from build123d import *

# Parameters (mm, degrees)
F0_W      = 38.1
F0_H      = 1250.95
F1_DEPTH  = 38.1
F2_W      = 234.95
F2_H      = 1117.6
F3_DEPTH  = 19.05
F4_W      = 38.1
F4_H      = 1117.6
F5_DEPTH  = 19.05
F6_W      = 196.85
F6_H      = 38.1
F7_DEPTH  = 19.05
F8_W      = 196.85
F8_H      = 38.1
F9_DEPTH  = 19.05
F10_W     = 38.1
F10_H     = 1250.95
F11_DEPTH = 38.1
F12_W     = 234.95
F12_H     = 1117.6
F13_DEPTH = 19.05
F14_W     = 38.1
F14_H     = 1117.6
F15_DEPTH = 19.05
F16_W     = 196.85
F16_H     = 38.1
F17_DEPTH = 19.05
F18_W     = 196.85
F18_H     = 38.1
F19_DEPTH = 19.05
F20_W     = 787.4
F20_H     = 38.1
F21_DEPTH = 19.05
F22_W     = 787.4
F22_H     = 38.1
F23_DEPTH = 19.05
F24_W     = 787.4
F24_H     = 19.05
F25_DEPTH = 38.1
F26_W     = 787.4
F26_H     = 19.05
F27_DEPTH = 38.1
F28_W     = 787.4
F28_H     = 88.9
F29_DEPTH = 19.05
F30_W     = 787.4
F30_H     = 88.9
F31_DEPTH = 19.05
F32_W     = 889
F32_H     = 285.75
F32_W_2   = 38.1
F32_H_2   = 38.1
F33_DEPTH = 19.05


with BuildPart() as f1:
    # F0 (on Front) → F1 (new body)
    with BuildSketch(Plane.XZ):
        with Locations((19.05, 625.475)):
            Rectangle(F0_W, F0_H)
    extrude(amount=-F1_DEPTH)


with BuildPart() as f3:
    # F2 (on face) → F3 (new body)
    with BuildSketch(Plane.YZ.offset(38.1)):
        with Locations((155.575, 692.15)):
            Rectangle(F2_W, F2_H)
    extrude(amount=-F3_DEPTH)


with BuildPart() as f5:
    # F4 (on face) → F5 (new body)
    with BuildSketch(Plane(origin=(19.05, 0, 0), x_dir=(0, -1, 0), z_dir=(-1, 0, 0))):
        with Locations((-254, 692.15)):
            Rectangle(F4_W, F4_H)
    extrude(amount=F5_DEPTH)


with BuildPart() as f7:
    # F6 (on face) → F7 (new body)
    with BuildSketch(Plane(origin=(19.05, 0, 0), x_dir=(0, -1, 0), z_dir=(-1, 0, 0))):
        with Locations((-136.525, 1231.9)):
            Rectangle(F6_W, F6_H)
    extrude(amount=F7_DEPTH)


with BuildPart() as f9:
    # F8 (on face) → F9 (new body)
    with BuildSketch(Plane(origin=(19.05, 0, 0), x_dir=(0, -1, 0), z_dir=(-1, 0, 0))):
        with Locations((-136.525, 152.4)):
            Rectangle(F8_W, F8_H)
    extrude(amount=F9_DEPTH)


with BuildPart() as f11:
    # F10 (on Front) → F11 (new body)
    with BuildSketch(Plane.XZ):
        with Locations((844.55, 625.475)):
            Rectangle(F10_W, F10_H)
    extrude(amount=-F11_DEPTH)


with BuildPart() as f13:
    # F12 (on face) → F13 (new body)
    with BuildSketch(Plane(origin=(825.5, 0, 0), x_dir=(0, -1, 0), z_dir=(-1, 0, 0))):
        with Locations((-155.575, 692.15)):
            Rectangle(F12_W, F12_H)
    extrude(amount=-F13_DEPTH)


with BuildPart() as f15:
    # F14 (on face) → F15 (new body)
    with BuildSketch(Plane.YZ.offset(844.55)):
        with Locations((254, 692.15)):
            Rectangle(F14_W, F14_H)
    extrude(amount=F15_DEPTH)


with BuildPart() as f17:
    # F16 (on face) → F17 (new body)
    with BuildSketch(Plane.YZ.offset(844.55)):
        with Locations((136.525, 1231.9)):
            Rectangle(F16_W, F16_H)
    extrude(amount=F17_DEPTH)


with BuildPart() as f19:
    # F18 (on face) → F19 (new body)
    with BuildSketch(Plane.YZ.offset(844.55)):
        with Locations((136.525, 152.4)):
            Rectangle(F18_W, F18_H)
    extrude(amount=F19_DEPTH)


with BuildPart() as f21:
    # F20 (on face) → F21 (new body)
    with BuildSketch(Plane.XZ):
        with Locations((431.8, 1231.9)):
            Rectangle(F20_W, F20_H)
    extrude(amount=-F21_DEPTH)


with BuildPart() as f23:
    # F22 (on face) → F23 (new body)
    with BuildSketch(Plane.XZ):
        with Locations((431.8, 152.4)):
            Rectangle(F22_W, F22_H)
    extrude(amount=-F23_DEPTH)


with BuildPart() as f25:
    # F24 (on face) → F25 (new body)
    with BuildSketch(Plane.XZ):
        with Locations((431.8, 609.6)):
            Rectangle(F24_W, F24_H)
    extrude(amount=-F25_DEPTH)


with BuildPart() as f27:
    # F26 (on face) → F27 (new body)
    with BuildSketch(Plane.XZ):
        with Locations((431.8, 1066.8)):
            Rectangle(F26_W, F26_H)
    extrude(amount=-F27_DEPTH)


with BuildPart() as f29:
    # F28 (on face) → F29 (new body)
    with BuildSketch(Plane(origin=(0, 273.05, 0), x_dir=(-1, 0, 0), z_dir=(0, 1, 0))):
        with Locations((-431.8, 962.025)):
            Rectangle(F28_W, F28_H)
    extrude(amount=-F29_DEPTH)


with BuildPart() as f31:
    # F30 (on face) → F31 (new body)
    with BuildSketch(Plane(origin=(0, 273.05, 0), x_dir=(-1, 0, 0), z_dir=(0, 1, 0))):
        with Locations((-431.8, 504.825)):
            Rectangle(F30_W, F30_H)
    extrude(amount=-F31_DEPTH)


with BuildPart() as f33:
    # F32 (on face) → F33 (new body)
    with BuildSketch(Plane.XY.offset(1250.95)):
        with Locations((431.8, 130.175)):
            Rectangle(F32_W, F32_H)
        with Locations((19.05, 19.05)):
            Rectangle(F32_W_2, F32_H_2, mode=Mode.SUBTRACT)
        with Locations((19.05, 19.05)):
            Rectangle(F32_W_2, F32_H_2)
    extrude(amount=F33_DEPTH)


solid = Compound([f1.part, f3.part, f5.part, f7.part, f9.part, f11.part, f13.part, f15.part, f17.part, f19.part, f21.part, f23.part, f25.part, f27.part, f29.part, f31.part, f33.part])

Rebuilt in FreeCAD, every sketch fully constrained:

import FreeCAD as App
import Part
import Sketcher
Q = App.Units.Quantity


def add_polygon(sketch, points):
    """Adds a closed chain of lines whose ends are joined by coincident constraints."""
    first, n = sketch.GeometryCount, len(points)
    for a, b in zip(points, points[1:] + points[:1]):
        sketch.addGeometry(Part.LineSegment(App.Vector(*a, 0), App.Vector(*b, 0)), False)
    for i in range(n):
        sketch.addConstraint(Sketcher.Constraint("Coincident", first + i, 2, first + (i + 1) % n, 1))

doc = App.newDocument("Part")
params = doc.addObject("Spreadsheet::Sheet", "Params")
for row, (alias, value) in enumerate([
    ("sketch1_width", "1.5 in"),
    ("sketch1_height", "49.25 in"),
    ("pad1_length", "1.5 in"),
    ("sketch2_height", "44 in"),
    ("sketch2_width", "9.25 in"),
    ("pad2_length", "0.75 in"),
    ("sketch3_height", "44 in"),
    ("sketch3_width", "1.5 in"),
    ("pad3_length", "0.75 in"),
    ("sketch4_height", "1.5 in"),
    ("sketch4_width", "7.75 in"),
    ("pad4_length", "0.75 in"),
    ("sketch5_height", "1.5 in"),
    ("sketch5_width", "7.75 in"),
    ("pad5_length", "0.75 in"),
    ("sketch6_width", "1.5 in"),
    ("sketch6_height", "49.25 in"),
    ("pad6_length", "1.5 in"),
    ("sketch7_height", "44 in"),
    ("sketch7_width", "9.25 in"),
    ("pad7_length", "0.75 in"),
    ("sketch8_height", "44 in"),
    ("sketch8_width", "1.5 in"),
    ("pad8_length", "0.75 in"),
    ("sketch9_height", "1.5 in"),
    ("sketch9_width", "7.75 in"),
    ("pad9_length", "0.75 in"),
    ("sketch10_height", "1.5 in"),
    ("sketch10_width", "7.75 in"),
    ("pad10_length", "0.75 in"),
    ("sketch11_width", "31 in"),
    ("sketch11_height", "1.5 in"),
    ("pad11_length", "0.75 in"),
    ("sketch12_width", "31 in"),
    ("sketch12_height", "1.5 in"),
    ("pad12_length", "0.75 in"),
    ("sketch13_width", "31 in"),
    ("sketch13_height", "0.75 in"),
    ("pad13_length", "1.5 in"),
    ("sketch14_width", "31 in"),
    ("sketch14_height", "0.75 in"),
    ("pad14_length", "1.5 in"),
    ("sketch15_width", "31 in"),
    ("sketch15_height", "3.5 in"),
    ("pad15_length", "0.75 in"),
    ("sketch16_width", "31 in"),
    ("sketch16_height", "3.5 in"),
    ("pad16_length", "0.75 in"),
    ("sketch17_width", "35 in"),
    ("sketch17_height", "11.25 in"),
    ("pad17_length", "0.75 in"),
], start=1):
    params.set(f"A{row}", alias)
    params.set(f"B{row}", "=" + value)
    params.setAlias(f"B{row}", alias)

body = doc.addObject("PartDesign::Body", "Body")

# Sketch on XZ plane
sketch1 = body.newObject("Sketcher::SketchObject", "Sketch")
sketch1.AttachmentSupport = (doc.getObject("XZ_Plane"), [""])
sketch1.MapMode = "FlatFace"
add_polygon(sketch1, [(0, 1251), (0, 0), (38, 0), (38, 1251)])  # lines 0-3
sketch1.addConstraint([
    Sketcher.Constraint("Vertical", 0),
    Sketcher.Constraint("Horizontal", 1),
    Sketcher.Constraint("Vertical", 2),
    Sketcher.Constraint("Horizontal", 3),
    Sketcher.Constraint("Coincident", 0, 2, -1, 1),
    Sketcher.Constraint("DistanceX", 1, 1, 1, 2, Q("1.5 in")),
    Sketcher.Constraint("DistanceY", 0, 2, 0, 1, Q("49.25 in")),
])
sketch1.setExpression("Constraints[9]", "Params.sketch1_width")
sketch1.setExpression("Constraints[10]", "Params.sketch1_height")
pad1 = body.newObject("PartDesign::Pad", "Pad")
pad1.Profile = sketch1
pad1.setExpression("Length", "Params.pad1_length")
pad1.Reversed = True
body2 = doc.addObject("PartDesign::Body", "Body001")

# Sketch on YZ plane
sketch2 = body2.newObject("Sketcher::SketchObject", "Sketch001")
sketch2.AttachmentSupport = (doc.getObject("YZ_Plane001"), [""])
sketch2.MapMode = "FlatFace"
sketch2.AttachmentOffset = App.Placement(App.Vector(0, 0, 1.5 * 25.4), App.Rotation())
add_polygon(sketch2, [(38, 1251), (38, 133), (273, 133), (273, 1251)])  # lines 0-3
sketch2.addConstraint([
    Sketcher.Constraint("Vertical", 0),
    Sketcher.Constraint("Horizontal", 1),
    Sketcher.Constraint("Vertical", 2),
    Sketcher.Constraint("Horizontal", 3),
    Sketcher.Constraint("DistanceY", 0, 2, 0, 1, Q("44 in")),
    Sketcher.Constraint("DistanceX", 1, 1, 1, 2, Q("9.25 in")),
    Sketcher.Constraint("DistanceX", -1, 1, 0, 2, Q("1.5 in")),
    Sketcher.Constraint("DistanceY", -1, 1, 0, 2, Q("5.25 in")),
])
sketch2.setExpression("Constraints[8]", "Params.sketch2_height")
sketch2.setExpression("Constraints[9]", "Params.sketch2_width")
pad2 = body2.newObject("PartDesign::Pad", "Pad001")
pad2.Profile = sketch2
pad2.setExpression("Length", "Params.pad2_length")
pad2.Reversed = True
body3 = doc.addObject("PartDesign::Body", "Body002")

# Sketch on YZ plane
sketch3 = body3.newObject("Sketcher::SketchObject", "Sketch002")
sketch3.AttachmentSupport = (doc.getObject("YZ_Plane002"), [""])
sketch3.MapMode = "FlatFace"
sketch3.AttachmentOffset = App.Placement(App.Vector(0, 0, 0.75 * 25.4), App.Rotation())
add_polygon(sketch3, [(273, 1251), (273, 133), (235, 133), (235, 1251)])  # lines 0-3
sketch3.addConstraint([
    Sketcher.Constraint("Vertical", 0),
    Sketcher.Constraint("Horizontal", 1),
    Sketcher.Constraint("Vertical", 2),
    Sketcher.Constraint("Horizontal", 3),
    Sketcher.Constraint("DistanceY", 0, 2, 0, 1, Q("44 in")),
    Sketcher.Constraint("DistanceX", 1, 2, 1, 1, Q("1.5 in")),
    Sketcher.Constraint("DistanceX", -1, 1, 0, 2, Q("10.75 in")),
    Sketcher.Constraint("DistanceY", -1, 1, 0, 2, Q("5.25 in")),
])
sketch3.setExpression("Constraints[8]", "Params.sketch3_height")
sketch3.setExpression("Constraints[9]", "Params.sketch3_width")
pad3 = body3.newObject("PartDesign::Pad", "Pad002")
pad3.Profile = sketch3
pad3.setExpression("Length", "Params.pad3_length")
pad3.Reversed = True
body4 = doc.addObject("PartDesign::Body", "Body003")

# Sketch on YZ plane
sketch4 = body4.newObject("Sketcher::SketchObject", "Sketch003")
sketch4.AttachmentSupport = (doc.getObject("YZ_Plane003"), [""])
sketch4.MapMode = "FlatFace"
sketch4.AttachmentOffset = App.Placement(App.Vector(0, 0, 0.75 * 25.4), App.Rotation())
add_polygon(sketch4, [(235, 1251), (235, 1213), (38, 1213), (38, 1251)])  # lines 0-3
sketch4.addConstraint([
    Sketcher.Constraint("Vertical", 0),
    Sketcher.Constraint("Horizontal", 1),
    Sketcher.Constraint("Vertical", 2),
    Sketcher.Constraint("Horizontal", 3),
    Sketcher.Constraint("DistanceY", 0, 2, 0, 1, Q("1.5 in")),
    Sketcher.Constraint("DistanceX", 1, 2, 1, 1, Q("7.75 in")),
    Sketcher.Constraint("DistanceX", -1, 1, 1, 2, Q("1.5 in")),
    Sketcher.Constraint("DistanceY", -1, 1, 0, 2, Q("47.75 in")),
])
sketch4.setExpression("Constraints[8]", "Params.sketch4_height")
sketch4.setExpression("Constraints[9]", "Params.sketch4_width")
pad4 = body4.newObject("PartDesign::Pad", "Pad003")
pad4.Profile = sketch4
pad4.setExpression("Length", "Params.pad4_length")
pad4.Reversed = True
body5 = doc.addObject("PartDesign::Body", "Body004")

# Sketch on YZ plane
sketch5 = body5.newObject("Sketcher::SketchObject", "Sketch004")
sketch5.AttachmentSupport = (doc.getObject("YZ_Plane004"), [""])
sketch5.MapMode = "FlatFace"
sketch5.AttachmentOffset = App.Placement(App.Vector(0, 0, 0.75 * 25.4), App.Rotation())
add_polygon(sketch5, [(235, 171), (235, 133), (38, 133), (38, 171)])  # lines 0-3
sketch5.addConstraint([
    Sketcher.Constraint("Vertical", 0),
    Sketcher.Constraint("Horizontal", 1),
    Sketcher.Constraint("Vertical", 2),
    Sketcher.Constraint("Horizontal", 3),
    Sketcher.Constraint("DistanceY", 0, 2, 0, 1, Q("1.5 in")),
    Sketcher.Constraint("DistanceX", 1, 2, 1, 1, Q("7.75 in")),
    Sketcher.Constraint("DistanceX", -1, 1, 1, 2, Q("1.5 in")),
    Sketcher.Constraint("DistanceY", -1, 1, 0, 2, Q("5.25 in")),
])
sketch5.setExpression("Constraints[8]", "Params.sketch5_height")
sketch5.setExpression("Constraints[9]", "Params.sketch5_width")
pad5 = body5.newObject("PartDesign::Pad", "Pad004")
pad5.Profile = sketch5
pad5.setExpression("Length", "Params.pad5_length")
pad5.Reversed = True
body6 = doc.addObject("PartDesign::Body", "Body005")

# Sketch on XZ plane
sketch6 = body6.newObject("Sketcher::SketchObject", "Sketch005")
sketch6.AttachmentSupport = (doc.getObject("XZ_Plane005"), [""])
sketch6.MapMode = "FlatFace"
add_polygon(sketch6, [(826, 1251), (826, 0), (864, 0), (864, 1251)])  # lines 0-3
sketch6.addConstraint([
    Sketcher.Constraint("Vertical", 0),
    Sketcher.Constraint("Horizontal", 1),
    Sketcher.Constraint("Vertical", 2),
    Sketcher.Constraint("Horizontal", 3),
    Sketcher.Constraint("PointOnObject", 0, 2, -1),
    Sketcher.Constraint("DistanceX", 1, 1, 1, 2, Q("1.5 in")),
    Sketcher.Constraint("DistanceX", -1, 1, 1, 2, Q("34 in")),
    Sketcher.Constraint("DistanceY", 0, 2, 0, 1, Q("49.25 in")),
])
sketch6.setExpression("Constraints[9]", "Params.sketch6_width")
sketch6.setExpression("Constraints[11]", "Params.sketch6_height")
pad6 = body6.newObject("PartDesign::Pad", "Pad005")
pad6.Profile = sketch6
pad6.setExpression("Length", "Params.pad6_length")
pad6.Reversed = True
body7 = doc.addObject("PartDesign::Body", "Body006")

# Sketch on YZ plane
sketch7 = body7.newObject("Sketcher::SketchObject", "Sketch006")
sketch7.AttachmentSupport = (doc.getObject("YZ_Plane006"), [""])
sketch7.MapMode = "FlatFace"
sketch7.AttachmentOffset = App.Placement(App.Vector(0, 0, 32.5 * 25.4), App.Rotation())
add_polygon(sketch7, [(273, 1251), (273, 133), (38, 133), (38, 1251)])  # lines 0-3
sketch7.addConstraint([
    Sketcher.Constraint("Vertical", 0),
    Sketcher.Constraint("Horizontal", 1),
    Sketcher.Constraint("Vertical", 2),
    Sketcher.Constraint("Horizontal", 3),
    Sketcher.Constraint("DistanceY", 0, 2, 0, 1, Q("44 in")),
    Sketcher.Constraint("DistanceX", 1, 2, 1, 1, Q("9.25 in")),
    Sketcher.Constraint("DistanceX", -1, 1, 1, 2, Q("1.5 in")),
    Sketcher.Constraint("DistanceY", -1, 1, 0, 2, Q("5.25 in")),
])
sketch7.setExpression("Constraints[8]", "Params.sketch7_height")
sketch7.setExpression("Constraints[9]", "Params.sketch7_width")
pad7 = body7.newObject("PartDesign::Pad", "Pad006")
pad7.Profile = sketch7
pad7.setExpression("Length", "Params.pad7_length")
body8 = doc.addObject("PartDesign::Body", "Body007")

# Sketch on YZ plane
sketch8 = body8.newObject("Sketcher::SketchObject", "Sketch007")
sketch8.AttachmentSupport = (doc.getObject("YZ_Plane007"), [""])
sketch8.MapMode = "FlatFace"
sketch8.AttachmentOffset = App.Placement(App.Vector(0, 0, 33.25 * 25.4), App.Rotation())
add_polygon(sketch8, [(235, 1251), (235, 133), (273, 133), (273, 1251)])  # lines 0-3
sketch8.addConstraint([
    Sketcher.Constraint("Vertical", 0),
    Sketcher.Constraint("Horizontal", 1),
    Sketcher.Constraint("Vertical", 2),
    Sketcher.Constraint("Horizontal", 3),
    Sketcher.Constraint("DistanceY", 0, 2, 0, 1, Q("44 in")),
    Sketcher.Constraint("DistanceX", 1, 1, 1, 2, Q("1.5 in")),
    Sketcher.Constraint("DistanceX", -1, 1, 0, 2, Q("9.25 in")),
    Sketcher.Constraint("DistanceY", -1, 1, 0, 2, Q("5.25 in")),
])
sketch8.setExpression("Constraints[8]", "Params.sketch8_height")
sketch8.setExpression("Constraints[9]", "Params.sketch8_width")
pad8 = body8.newObject("PartDesign::Pad", "Pad007")
pad8.Profile = sketch8
pad8.setExpression("Length", "Params.pad8_length")
body9 = doc.addObject("PartDesign::Body", "Body008")

# Sketch on YZ plane
sketch9 = body9.newObject("Sketcher::SketchObject", "Sketch008")
sketch9.AttachmentSupport = (doc.getObject("YZ_Plane008"), [""])
sketch9.MapMode = "FlatFace"
sketch9.AttachmentOffset = App.Placement(App.Vector(0, 0, 33.25 * 25.4), App.Rotation())
add_polygon(sketch9, [(38, 1251), (38, 1213), (235, 1213), (235, 1251)])  # lines 0-3
sketch9.addConstraint([
    Sketcher.Constraint("Vertical", 0),
    Sketcher.Constraint("Horizontal", 1),
    Sketcher.Constraint("Vertical", 2),
    Sketcher.Constraint("Horizontal", 3),
    Sketcher.Constraint("DistanceY", 0, 2, 0, 1, Q("1.5 in")),
    Sketcher.Constraint("DistanceX", 1, 1, 1, 2, Q("7.75 in")),
    Sketcher.Constraint("DistanceX", -1, 1, 0, 2, Q("1.5 in")),
    Sketcher.Constraint("DistanceY", -1, 1, 0, 2, Q("47.75 in")),
])
sketch9.setExpression("Constraints[8]", "Params.sketch9_height")
sketch9.setExpression("Constraints[9]", "Params.sketch9_width")
pad9 = body9.newObject("PartDesign::Pad", "Pad008")
pad9.Profile = sketch9
pad9.setExpression("Length", "Params.pad9_length")
body10 = doc.addObject("PartDesign::Body", "Body009")

# Sketch on YZ plane
sketch10 = body10.newObject("Sketcher::SketchObject", "Sketch009")
sketch10.AttachmentSupport = (doc.getObject("YZ_Plane009"), [""])
sketch10.MapMode = "FlatFace"
sketch10.AttachmentOffset = App.Placement(App.Vector(0, 0, 33.25 * 25.4), App.Rotation())
add_polygon(sketch10, [(38, 171), (38, 133), (235, 133), (235, 171)])  # lines 0-3
sketch10.addConstraint([
    Sketcher.Constraint("Vertical", 0),
    Sketcher.Constraint("Horizontal", 1),
    Sketcher.Constraint("Vertical", 2),
    Sketcher.Constraint("Horizontal", 3),
    Sketcher.Constraint("DistanceY", 0, 2, 0, 1, Q("1.5 in")),
    Sketcher.Constraint("DistanceX", 1, 1, 1, 2, Q("7.75 in")),
    Sketcher.Constraint("DistanceX", -1, 1, 0, 2, Q("1.5 in")),
    Sketcher.Constraint("DistanceY", -1, 1, 0, 2, Q("5.25 in")),
])
sketch10.setExpression("Constraints[8]", "Params.sketch10_height")
sketch10.setExpression("Constraints[9]", "Params.sketch10_width")
pad10 = body10.newObject("PartDesign::Pad", "Pad009")
pad10.Profile = sketch10
pad10.setExpression("Length", "Params.pad10_length")
body11 = doc.addObject("PartDesign::Body", "Body010")

# Sketch on XZ plane
sketch11 = body11.newObject("Sketcher::SketchObject", "Sketch010")
sketch11.AttachmentSupport = (doc.getObject("XZ_Plane010"), [""])
sketch11.MapMode = "FlatFace"
add_polygon(sketch11, [(38, 1251), (38, 1213), (826, 1213), (826, 1251)])  # lines 0-3
sketch11.addConstraint([
    Sketcher.Constraint("Vertical", 0),
    Sketcher.Constraint("Horizontal", 1),
    Sketcher.Constraint("Vertical", 2),
    Sketcher.Constraint("Horizontal", 3),
    Sketcher.Constraint("DistanceX", 1, 1, 1, 2, Q("31 in")),
    Sketcher.Constraint("DistanceY", 0, 2, 0, 1, Q("1.5 in")),
    Sketcher.Constraint("DistanceX", -1, 1, 0, 2, Q("1.5 in")),
    Sketcher.Constraint("DistanceY", -1, 1, 0, 2, Q("47.75 in")),
])
sketch11.setExpression("Constraints[8]", "Params.sketch11_width")
sketch11.setExpression("Constraints[9]", "Params.sketch11_height")
pad11 = body11.newObject("PartDesign::Pad", "Pad010")
pad11.Profile = sketch11
pad11.setExpression("Length", "Params.pad11_length")
pad11.Reversed = True
body12 = doc.addObject("PartDesign::Body", "Body011")

# Sketch on XZ plane
sketch12 = body12.newObject("Sketcher::SketchObject", "Sketch011")
sketch12.AttachmentSupport = (doc.getObject("XZ_Plane011"), [""])
sketch12.MapMode = "FlatFace"
add_polygon(sketch12, [(38, 171), (38, 133), (826, 133), (826, 171)])  # lines 0-3
sketch12.addConstraint([
    Sketcher.Constraint("Vertical", 0),
    Sketcher.Constraint("Horizontal", 1),
    Sketcher.Constraint("Vertical", 2),
    Sketcher.Constraint("Horizontal", 3),
    Sketcher.Constraint("DistanceX", 1, 1, 1, 2, Q("31 in")),
    Sketcher.Constraint("DistanceY", 0, 2, 0, 1, Q("1.5 in")),
    Sketcher.Constraint("DistanceX", -1, 1, 0, 2, Q("1.5 in")),
    Sketcher.Constraint("DistanceY", -1, 1, 0, 2, Q("5.25 in")),
])
sketch12.setExpression("Constraints[8]", "Params.sketch12_width")
sketch12.setExpression("Constraints[9]", "Params.sketch12_height")
pad12 = body12.newObject("PartDesign::Pad", "Pad011")
pad12.Profile = sketch12
pad12.setExpression("Length", "Params.pad12_length")
pad12.Reversed = True
body13 = doc.addObject("PartDesign::Body", "Body012")

# Sketch on XZ plane
sketch13 = body13.newObject("Sketcher::SketchObject", "Sketch012")
sketch13.AttachmentSupport = (doc.getObject("XZ_Plane012"), [""])
sketch13.MapMode = "FlatFace"
add_polygon(sketch13, [(38, 619), (38, 600), (826, 600), (826, 619)])  # lines 0-3
sketch13.addConstraint([
    Sketcher.Constraint("Vertical", 0),
    Sketcher.Constraint("Horizontal", 1),
    Sketcher.Constraint("Vertical", 2),
    Sketcher.Constraint("Horizontal", 3),
    Sketcher.Constraint("DistanceX", 1, 1, 1, 2, Q("31 in")),
    Sketcher.Constraint("DistanceY", 0, 2, 0, 1, Q("0.75 in")),
    Sketcher.Constraint("DistanceX", -1, 1, 0, 2, Q("1.5 in")),
    Sketcher.Constraint("DistanceY", -1, 1, 0, 2, Q("23.625 in")),
])
sketch13.setExpression("Constraints[8]", "Params.sketch13_width")
sketch13.setExpression("Constraints[9]", "Params.sketch13_height")
pad13 = body13.newObject("PartDesign::Pad", "Pad012")
pad13.Profile = sketch13
pad13.setExpression("Length", "Params.pad13_length")
pad13.Reversed = True
body14 = doc.addObject("PartDesign::Body", "Body013")

# Sketch on XZ plane
sketch14 = body14.newObject("Sketcher::SketchObject", "Sketch013")
sketch14.AttachmentSupport = (doc.getObject("XZ_Plane013"), [""])
sketch14.MapMode = "FlatFace"
add_polygon(sketch14, [(38, 1076), (38, 1057), (826, 1057), (826, 1076)])  # lines 0-3
sketch14.addConstraint([
    Sketcher.Constraint("Vertical", 0),
    Sketcher.Constraint("Horizontal", 1),
    Sketcher.Constraint("Vertical", 2),
    Sketcher.Constraint("Horizontal", 3),
    Sketcher.Constraint("DistanceX", 1, 1, 1, 2, Q("31 in")),
    Sketcher.Constraint("DistanceY", 0, 2, 0, 1, Q("0.75 in")),
    Sketcher.Constraint("DistanceX", -1, 1, 0, 2, Q("1.5 in")),
    Sketcher.Constraint("DistanceY", -1, 1, 0, 2, Q("41.625 in")),
])
sketch14.setExpression("Constraints[8]", "Params.sketch14_width")
sketch14.setExpression("Constraints[9]", "Params.sketch14_height")
pad14 = body14.newObject("PartDesign::Pad", "Pad013")
pad14.Profile = sketch14
pad14.setExpression("Length", "Params.pad14_length")
pad14.Reversed = True
body15 = doc.addObject("PartDesign::Body", "Body014")

# Sketch on XZ plane
sketch15 = body15.newObject("Sketcher::SketchObject", "Sketch014")
sketch15.AttachmentSupport = (doc.getObject("XZ_Plane014"), [""])
sketch15.MapMode = "FlatFace"
sketch15.AttachmentOffset = App.Placement(App.Vector(0, 0, -10.75 * 25.4), App.Rotation())
add_polygon(sketch15, [(826, 1006), (826, 918), (38, 918), (38, 1006)])  # lines 0-3
sketch15.addConstraint([
    Sketcher.Constraint("Vertical", 0),
    Sketcher.Constraint("Horizontal", 1),
    Sketcher.Constraint("Vertical", 2),
    Sketcher.Constraint("Horizontal", 3),
    Sketcher.Constraint("DistanceX", 1, 2, 1, 1, Q("31 in")),
    Sketcher.Constraint("DistanceY", 0, 2, 0, 1, Q("3.5 in")),
    Sketcher.Constraint("DistanceX", -1, 1, 0, 2, Q("32.5 in")),
    Sketcher.Constraint("DistanceY", -1, 1, 0, 2, Q("36.125 in")),
])
sketch15.setExpression("Constraints[8]", "Params.sketch15_width")
sketch15.setExpression("Constraints[9]", "Params.sketch15_height")
pad15 = body15.newObject("PartDesign::Pad", "Pad014")
pad15.Profile = sketch15
pad15.setExpression("Length", "Params.pad15_length")
body16 = doc.addObject("PartDesign::Body", "Body015")

# Sketch on XZ plane
sketch16 = body16.newObject("Sketcher::SketchObject", "Sketch015")
sketch16.AttachmentSupport = (doc.getObject("XZ_Plane015"), [""])
sketch16.MapMode = "FlatFace"
sketch16.AttachmentOffset = App.Placement(App.Vector(0, 0, -10.75 * 25.4), App.Rotation())
add_polygon(sketch16, [(826, 549), (826, 460), (38, 460), (38, 549)])  # lines 0-3
sketch16.addConstraint([
    Sketcher.Constraint("Vertical", 0),
    Sketcher.Constraint("Horizontal", 1),
    Sketcher.Constraint("Vertical", 2),
    Sketcher.Constraint("Horizontal", 3),
    Sketcher.Constraint("DistanceX", 1, 2, 1, 1, Q("31 in")),
    Sketcher.Constraint("DistanceY", 0, 2, 0, 1, Q("3.5 in")),
    Sketcher.Constraint("DistanceX", -1, 1, 0, 2, Q("32.5 in")),
    Sketcher.Constraint("DistanceY", -1, 1, 0, 2, Q("18.125 in")),
])
sketch16.setExpression("Constraints[8]", "Params.sketch16_width")
sketch16.setExpression("Constraints[9]", "Params.sketch16_height")
pad16 = body16.newObject("PartDesign::Pad", "Pad015")
pad16.Profile = sketch16
pad16.setExpression("Length", "Params.pad16_length")
body17 = doc.addObject("PartDesign::Body", "Body016")

# Sketch on XY plane
sketch17 = body17.newObject("Sketcher::SketchObject", "Sketch016")
sketch17.AttachmentSupport = (doc.getObject("XY_Plane016"), [""])
sketch17.MapMode = "FlatFace"
sketch17.AttachmentOffset = App.Placement(App.Vector(0, 0, 49.25 * 25.4), App.Rotation())
add_polygon(sketch17, [(-13, 273), (-13, -13), (876, -13), (876, 273)])  # lines 0-3
sketch17.addConstraint([
    Sketcher.Constraint("Vertical", 0),
    Sketcher.Constraint("Horizontal", 1),
    Sketcher.Constraint("Vertical", 2),
    Sketcher.Constraint("Horizontal", 3),
    Sketcher.Constraint("DistanceX", 1, 1, 1, 2, Q("35 in")),
    Sketcher.Constraint("DistanceY", 0, 2, 0, 1, Q("11.25 in")),
    Sketcher.Constraint("DistanceX", 0, 2, -1, 1, Q("0.5 in")),
    Sketcher.Constraint("DistanceY", 0, 2, -1, 1, Q("0.5 in")),
])
sketch17.setExpression("Constraints[8]", "Params.sketch17_width")
sketch17.setExpression("Constraints[9]", "Params.sketch17_height")
pad17 = body17.newObject("PartDesign::Pad", "Pad016")
pad17.Profile = sketch17
pad17.setExpression("Length", "Params.pad17_length")

doc.recompute()
